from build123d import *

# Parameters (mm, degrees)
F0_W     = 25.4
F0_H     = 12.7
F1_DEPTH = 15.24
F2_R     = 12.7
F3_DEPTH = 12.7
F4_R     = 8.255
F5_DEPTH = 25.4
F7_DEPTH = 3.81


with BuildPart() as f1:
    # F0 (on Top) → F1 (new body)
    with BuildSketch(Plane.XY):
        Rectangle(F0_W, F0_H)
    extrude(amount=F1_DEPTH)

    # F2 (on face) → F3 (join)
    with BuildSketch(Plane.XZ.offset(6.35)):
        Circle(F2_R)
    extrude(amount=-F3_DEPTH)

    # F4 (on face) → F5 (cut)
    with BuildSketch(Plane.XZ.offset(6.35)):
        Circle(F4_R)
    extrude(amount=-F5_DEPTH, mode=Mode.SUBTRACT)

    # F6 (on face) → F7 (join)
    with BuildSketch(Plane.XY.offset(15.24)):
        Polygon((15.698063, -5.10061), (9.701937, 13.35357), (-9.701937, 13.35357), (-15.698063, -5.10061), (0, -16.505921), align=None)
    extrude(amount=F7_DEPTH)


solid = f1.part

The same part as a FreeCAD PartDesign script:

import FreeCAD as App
import Part
import Sketcher
from FreeCAD import Vector
Q = App.Units.Quantity

doc = App.newDocument("Part")
params = doc.addObject("Spreadsheet::Sheet", "Params")
for row, (alias, value) in enumerate([
    ("sketch1_width", "1 in"),
    ("sketch1_height", "0.5 in"),
    ("pad1_length", "0.6 in"),
    ("sketch2_diameter", "1 in"),
    ("pad2_length", "0.5 in"),
    ("sketch3_diameter", "0.65 in"),
    ("pocket1_length", "1 in"),
    ("pad3_length", "0.15 in"),
], start=1):
    params.set(f"A{row}", alias)
    params.set(f"B{row}", "=" + value)
    params.setAlias(f"B{row}", alias)

body = doc.addObject("PartDesign::Body", "Body")

# Sketch on XY plane
sketch1 = doc.addObject("Sketcher::SketchObject", "Sketch")
body.addObject(sketch1)
sketch1.AttachmentSupport = (doc.XY_Plane, [""])
sketch1.MapMode = "FlatFace"
sketch1.addGeometry([
    Part.LineSegment(Vector(-12.7, 6.35, 0), Vector(-12.7, -6.35, 0)),
    Part.LineSegment(Vector(-12.7, -6.35, 0), Vector(12.7, -6.35, 0)),
    Part.LineSegment(Vector(12.7, -6.35, 0), Vector(12.7, 6.35, 0)),
    Part.LineSegment(Vector(12.7, 6.35, 0), Vector(-12.7, 6.35, 0)),
], False)
sketch1.addConstraint([
    Sketcher.Constraint("Coincident", 0, 2, 1, 1),
    Sketcher.Constraint("Coincident", 1, 2, 2, 1),
    Sketcher.Constraint("Coincident", 2, 2, 3, 1),
    Sketcher.Constraint("Coincident", 3, 2, 0, 1),
    Sketcher.Constraint("Vertical", 0),
    Sketcher.Constraint("Horizontal", 1),
    Sketcher.Constraint("Vertical", 2),
    Sketcher.Constraint("Horizontal", 3),
    Sketcher.Constraint("Symmetric", 0, 2, 2, 2, -1, 1),
    Sketcher.Constraint("DistanceX", 1, 1, 1, 2, Q("1 in")),
    Sketcher.Constraint("DistanceY", 0, 2, 0, 1, Q("0.5 in")),
])
sketch1.setExpression("Constraints[9]", "Params.sketch1_width")
sketch1.setExpression("Constraints[10]", "Params.sketch1_height")
pad1 = doc.addObject("PartDesign::Pad", "Pad")
body.addObject(pad1)
pad1.Profile = sketch1
pad1.setExpression("Length", "Params.pad1_length")

# Sketch on XZ plane
sketch2 = doc.addObject("Sketcher::SketchObject", "Sketch001")
body.addObject(sketch2)
sketch2.AttachmentSupport = (doc.XZ_Plane, [""])
sketch2.MapMode = "FlatFace"
sketch2.AttachmentOffset = App.Placement(Vector(0, 0, 0.25 * 25.4), App.Rotation())
sketch2.addGeometry(Part.Circle(Vector(0, 0, 0), Vector(0, 0, 1), 12.7), False)
sketch2.addConstraint([
    Sketcher.Constraint("Coincident", 0, 3, -1, 1),
    Sketcher.Constraint("Diameter", 0, Q("1 in")),
])
sketch2.setExpression("Constraints[1]", "Params.sketch2_diameter")
pad2 = doc.addObject("PartDesign::Pad", "Pad001")
body.addObject(pad2)
pad2.Profile = sketch2
pad2.setExpression("Length", "Params.pad2_length")
pad2.Reversed = True

# Sketch on XZ plane
sketch3 = doc.addObject("Sketcher::SketchObject", "Sketch002")
body.addObject(sketch3)
sketch3.AttachmentSupport = (doc.XZ_Plane, [""])
sketch3.MapMode = "FlatFace"
sketch3.AttachmentOffset = App.Placement(Vector(0, 0, 0.25 * 25.4), App.Rotation())
sketch3.addGeometry(Part.Circle(Vector(0, 0, 0), Vector(0, 0, 1), 8.255), False)
sketch3.addConstraint([
    Sketcher.Constraint("Coincident", 0, 3, -1, 1),
    Sketcher.Constraint("Diameter", 0, Q("0.65 in")),
])
sketch3.setExpression("Constraints[1]", "Params.sketch3_diameter")
pocket1 = doc.addObject("PartDesign::Pocket", "Pocket")
body.addObject(pocket1)
pocket1.Profile = sketch3
pocket1.setExpression("Length", "Params.pocket1_length")

# Sketch on XY plane
sketch4 = doc.addObject("Sketcher::SketchObject", "Sketch003")
body.addObject(sketch4)
sketch4.AttachmentSupport = (doc.XY_Plane, [""])
sketch4.MapMode = "FlatFace"
sketch4.AttachmentOffset = App.Placement(Vector(0, 0, 0.6 * 25.4), App.Rotation())
sketch4.addGeometry([
    Part.LineSegment(Vector(15.698063, -5.10061, 0), Vector(9.701937, 13.35357, 0)),  # 0
    Part.LineSegment(Vector(9.701937, 13.35357, 0), Vector(-9.701937, 13.35357, 0)),  # 1
    Part.LineSegment(Vector(-9.701937, 13.35357, 0), Vector(-15.698063, -5.10061, 0)),  # 2
    Part.LineSegment(Vector(-15.698063, -5.10061, 0), Vector(0, -16.505921, 0)),  # 3
    Part.LineSegment(Vector(0, -16.505921, 0), Vector(15.698063, -5.10061, 0)),  # 4
], False)
sketch4.addConstraint([
    Sketcher.Constraint("Coincident", 0, 2, 1, 1),
    Sketcher.Constraint("Coincident", 1, 2, 2, 1),
    Sketcher.Constraint("Coincident", 2, 2, 3, 1),
    Sketcher.Constraint("Coincident", 3, 2, 4, 1),
    Sketcher.Constraint("Coincident", 4, 2, 0, 1),
    Sketcher.Constraint("Horizontal", 1),
    Sketcher.Constraint("Symmetric", 2, 2, 4, 2, -2),
    Sketcher.Constraint("PointOnObject", 3, 2, -2),
    Sketcher.Constraint("Equal", 0, 2),
    Sketcher.Constraint("Equal", 2, 3),
    Sketcher.Constraint("Angle", 0, Q("107.999998 deg")),
    Sketcher.Constraint("Angle", 3, Q("-36.000001 deg")),
    Sketcher.Constraint("DistanceX", 2, 2, 0, 2, Q("1 in")),
    Sketcher.Constraint("DistanceY", -1, 1, 0, 2, Q("13.35357 mm")),
])
pad3 = doc.addObject("PartDesign::Pad", "Pad002")
body.addObject(pad3)
pad3.Profile = sketch4
pad3.setExpression("Length", "Params.pad3_length")

doc.recompute()
